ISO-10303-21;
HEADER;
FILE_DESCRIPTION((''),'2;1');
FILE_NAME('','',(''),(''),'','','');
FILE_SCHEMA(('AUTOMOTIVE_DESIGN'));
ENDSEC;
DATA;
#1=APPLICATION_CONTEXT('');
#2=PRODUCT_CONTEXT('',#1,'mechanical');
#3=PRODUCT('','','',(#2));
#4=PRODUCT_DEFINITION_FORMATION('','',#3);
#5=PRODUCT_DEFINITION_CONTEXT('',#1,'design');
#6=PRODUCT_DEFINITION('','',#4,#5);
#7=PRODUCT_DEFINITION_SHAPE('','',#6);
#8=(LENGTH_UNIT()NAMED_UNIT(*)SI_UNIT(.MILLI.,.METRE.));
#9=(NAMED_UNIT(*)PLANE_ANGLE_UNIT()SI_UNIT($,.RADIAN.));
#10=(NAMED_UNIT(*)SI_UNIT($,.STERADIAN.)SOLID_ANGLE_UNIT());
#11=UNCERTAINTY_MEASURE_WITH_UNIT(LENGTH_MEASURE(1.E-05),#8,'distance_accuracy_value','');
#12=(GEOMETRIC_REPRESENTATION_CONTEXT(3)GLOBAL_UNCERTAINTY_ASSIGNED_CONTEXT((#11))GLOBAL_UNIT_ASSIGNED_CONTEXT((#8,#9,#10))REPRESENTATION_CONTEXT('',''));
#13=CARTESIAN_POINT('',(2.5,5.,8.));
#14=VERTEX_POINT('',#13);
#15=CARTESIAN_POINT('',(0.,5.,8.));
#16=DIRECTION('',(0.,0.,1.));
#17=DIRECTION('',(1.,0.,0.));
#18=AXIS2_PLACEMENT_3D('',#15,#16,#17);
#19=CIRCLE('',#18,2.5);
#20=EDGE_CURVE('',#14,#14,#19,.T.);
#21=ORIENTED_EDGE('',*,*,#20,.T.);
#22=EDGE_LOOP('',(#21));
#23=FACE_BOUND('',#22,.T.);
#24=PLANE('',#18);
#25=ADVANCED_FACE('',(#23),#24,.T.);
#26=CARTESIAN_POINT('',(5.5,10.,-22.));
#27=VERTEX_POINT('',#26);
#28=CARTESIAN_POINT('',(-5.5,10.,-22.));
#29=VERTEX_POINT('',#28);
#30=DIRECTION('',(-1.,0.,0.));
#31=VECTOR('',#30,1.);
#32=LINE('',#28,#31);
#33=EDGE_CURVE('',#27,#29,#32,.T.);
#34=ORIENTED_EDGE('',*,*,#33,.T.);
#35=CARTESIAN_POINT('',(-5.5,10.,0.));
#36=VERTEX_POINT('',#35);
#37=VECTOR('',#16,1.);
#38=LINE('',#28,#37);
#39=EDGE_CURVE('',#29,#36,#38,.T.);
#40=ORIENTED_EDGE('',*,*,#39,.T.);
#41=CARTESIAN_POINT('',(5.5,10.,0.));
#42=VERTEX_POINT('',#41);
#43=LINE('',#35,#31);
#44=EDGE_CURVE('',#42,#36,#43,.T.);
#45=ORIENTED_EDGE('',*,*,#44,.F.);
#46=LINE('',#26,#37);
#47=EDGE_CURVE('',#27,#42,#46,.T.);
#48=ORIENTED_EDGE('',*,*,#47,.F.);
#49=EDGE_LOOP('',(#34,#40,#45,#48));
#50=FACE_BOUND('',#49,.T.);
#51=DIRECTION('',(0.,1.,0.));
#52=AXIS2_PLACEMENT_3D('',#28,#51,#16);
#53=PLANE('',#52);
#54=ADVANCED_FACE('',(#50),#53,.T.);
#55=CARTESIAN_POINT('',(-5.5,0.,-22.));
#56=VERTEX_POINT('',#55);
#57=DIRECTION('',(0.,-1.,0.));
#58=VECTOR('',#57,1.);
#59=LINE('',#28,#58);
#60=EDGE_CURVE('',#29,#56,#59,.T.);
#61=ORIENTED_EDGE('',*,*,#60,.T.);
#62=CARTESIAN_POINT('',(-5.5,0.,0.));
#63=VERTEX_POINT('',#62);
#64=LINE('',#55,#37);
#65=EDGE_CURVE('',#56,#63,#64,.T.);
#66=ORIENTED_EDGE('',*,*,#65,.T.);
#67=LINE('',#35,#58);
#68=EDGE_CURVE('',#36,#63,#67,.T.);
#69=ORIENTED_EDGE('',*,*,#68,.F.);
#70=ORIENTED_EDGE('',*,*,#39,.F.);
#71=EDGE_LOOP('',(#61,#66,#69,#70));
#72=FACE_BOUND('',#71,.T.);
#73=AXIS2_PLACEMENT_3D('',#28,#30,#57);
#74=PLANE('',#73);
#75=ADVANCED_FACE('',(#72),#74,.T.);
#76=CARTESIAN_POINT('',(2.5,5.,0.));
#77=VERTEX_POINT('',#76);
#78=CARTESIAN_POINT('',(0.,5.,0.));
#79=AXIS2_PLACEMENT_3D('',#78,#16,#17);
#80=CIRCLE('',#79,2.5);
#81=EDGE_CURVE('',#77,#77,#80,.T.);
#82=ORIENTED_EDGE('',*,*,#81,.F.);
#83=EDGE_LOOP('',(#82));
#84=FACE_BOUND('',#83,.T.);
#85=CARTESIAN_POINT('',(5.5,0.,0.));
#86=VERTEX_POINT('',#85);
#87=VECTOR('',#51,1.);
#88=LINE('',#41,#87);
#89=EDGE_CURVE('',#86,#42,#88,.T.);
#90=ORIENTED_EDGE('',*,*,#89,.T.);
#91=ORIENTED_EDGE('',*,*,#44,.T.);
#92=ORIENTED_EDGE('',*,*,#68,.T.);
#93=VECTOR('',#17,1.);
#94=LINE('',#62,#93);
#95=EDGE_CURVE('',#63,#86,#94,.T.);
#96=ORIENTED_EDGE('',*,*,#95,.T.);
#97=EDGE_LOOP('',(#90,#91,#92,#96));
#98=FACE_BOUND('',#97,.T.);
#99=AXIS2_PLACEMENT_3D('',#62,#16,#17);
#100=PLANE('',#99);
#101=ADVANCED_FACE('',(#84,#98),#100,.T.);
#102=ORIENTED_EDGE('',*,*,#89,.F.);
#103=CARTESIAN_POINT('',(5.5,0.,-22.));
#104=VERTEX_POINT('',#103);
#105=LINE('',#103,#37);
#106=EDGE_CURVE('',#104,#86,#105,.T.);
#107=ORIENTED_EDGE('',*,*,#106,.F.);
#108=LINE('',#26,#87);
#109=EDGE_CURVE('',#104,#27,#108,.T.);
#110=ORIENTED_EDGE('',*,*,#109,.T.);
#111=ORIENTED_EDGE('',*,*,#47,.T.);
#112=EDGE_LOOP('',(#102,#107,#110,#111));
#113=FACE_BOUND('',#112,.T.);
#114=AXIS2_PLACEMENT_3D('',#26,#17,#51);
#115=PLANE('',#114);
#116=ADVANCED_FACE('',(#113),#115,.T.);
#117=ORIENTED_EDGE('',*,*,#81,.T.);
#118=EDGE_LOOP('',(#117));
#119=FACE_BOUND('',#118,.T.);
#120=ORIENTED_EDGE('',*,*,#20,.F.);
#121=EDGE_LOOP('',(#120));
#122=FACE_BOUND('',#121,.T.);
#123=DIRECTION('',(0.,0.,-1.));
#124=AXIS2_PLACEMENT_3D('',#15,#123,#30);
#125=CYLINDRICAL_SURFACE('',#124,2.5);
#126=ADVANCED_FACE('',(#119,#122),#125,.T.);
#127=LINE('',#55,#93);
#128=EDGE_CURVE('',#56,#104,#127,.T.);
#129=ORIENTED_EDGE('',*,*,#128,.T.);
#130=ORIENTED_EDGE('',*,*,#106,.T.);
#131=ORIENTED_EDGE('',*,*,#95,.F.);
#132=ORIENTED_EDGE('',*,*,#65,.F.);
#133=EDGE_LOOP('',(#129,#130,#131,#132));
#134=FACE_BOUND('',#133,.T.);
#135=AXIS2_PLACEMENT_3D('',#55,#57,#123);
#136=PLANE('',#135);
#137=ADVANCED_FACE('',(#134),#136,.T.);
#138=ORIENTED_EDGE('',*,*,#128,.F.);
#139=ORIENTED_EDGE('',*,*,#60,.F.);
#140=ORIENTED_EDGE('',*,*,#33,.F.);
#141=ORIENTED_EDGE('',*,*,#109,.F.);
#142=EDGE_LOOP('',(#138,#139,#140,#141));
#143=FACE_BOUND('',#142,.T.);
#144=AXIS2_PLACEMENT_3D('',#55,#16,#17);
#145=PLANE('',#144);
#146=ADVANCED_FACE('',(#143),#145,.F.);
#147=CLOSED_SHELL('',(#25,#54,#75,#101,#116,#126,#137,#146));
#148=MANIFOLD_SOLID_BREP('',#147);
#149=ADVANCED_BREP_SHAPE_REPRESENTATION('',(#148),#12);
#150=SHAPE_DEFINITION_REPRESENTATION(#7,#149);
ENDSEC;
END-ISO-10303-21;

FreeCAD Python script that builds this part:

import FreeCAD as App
import Part
import Sketcher

V = App.Vector
Q = App.Units.Quantity


def add_polygon(sketch, points):
    """Adds a closed chain of lines whose ends are joined by coincident constraints."""
    first, n = sketch.GeometryCount, len(points)
    for a, b in zip(points, points[1:] + points[:1]):
        sketch.addGeometry(Part.LineSegment(App.Vector(*a, 0), App.Vector(*b, 0)), False)
    for i in range(n):
        sketch.addConstraint(Sketcher.Constraint("Coincident", first + i, 2, first + (i + 1) % n, 1))

doc = App.newDocument("Part")
body = doc.addObject("PartDesign::Body", "Body")

# Sketch on XY plane
sketch1 = body.newObject("Sketcher::SketchObject", "Sketch")
sketch1.AttachmentSupport = (doc.getObject("XY_Plane"), [""])
sketch1.MapMode = "FlatFace"
add_polygon(sketch1, [(-5.5, 10), (-5.5, 0), (5.5, 0), (5.5, 10)])  # lines 0-3
sketch1.addConstraint(Sketcher.Constraint("Vertical", 0))
sketch1.addConstraint(Sketcher.Constraint("Horizontal", 1))
sketch1.addConstraint(Sketcher.Constraint("Vertical", 2))
sketch1.addConstraint(Sketcher.Constraint("Horizontal", 3))
sketch1.addConstraint(Sketcher.Constraint("Symmetric", 0, 2, 1, 2, -1, 1))
sketch1.addConstraint(Sketcher.Constraint("DistanceX", 1, 1, 1, 2, Q("11 mm")))
sketch1.addConstraint(Sketcher.Constraint("DistanceY", 0, 2, 0, 1, Q("10 mm")))
pad1 = body.newObject("PartDesign::Pad", "Pad")
pad1.Profile = sketch1
pad1.Length = 22
pad1.Reversed = True

# Sketch on XY plane
sketch2 = body.newObject("Sketcher::SketchObject", "Sketch001")
sketch2.AttachmentSupport = (doc.getObject("XY_Plane"), [""])
sketch2.MapMode = "FlatFace"
sketch2.addGeometry(Part.Circle(V(0, 5, 0), V(0, 0, 1), 2.5), False)
sketch2.addConstraint(Sketcher.Constraint("PointOnObject", 0, 3, -2))
sketch2.addConstraint(Sketcher.Constraint("Diameter", 0, Q("5 mm")))
sketch2.addConstraint(Sketcher.Constraint("DistanceY", -1, 1, 0, 3, Q("5 mm")))
pad2 = body.newObject("PartDesign::Pad", "Pad001")
pad2.Profile = sketch2
pad2.Length = 8

doc.recompute()
